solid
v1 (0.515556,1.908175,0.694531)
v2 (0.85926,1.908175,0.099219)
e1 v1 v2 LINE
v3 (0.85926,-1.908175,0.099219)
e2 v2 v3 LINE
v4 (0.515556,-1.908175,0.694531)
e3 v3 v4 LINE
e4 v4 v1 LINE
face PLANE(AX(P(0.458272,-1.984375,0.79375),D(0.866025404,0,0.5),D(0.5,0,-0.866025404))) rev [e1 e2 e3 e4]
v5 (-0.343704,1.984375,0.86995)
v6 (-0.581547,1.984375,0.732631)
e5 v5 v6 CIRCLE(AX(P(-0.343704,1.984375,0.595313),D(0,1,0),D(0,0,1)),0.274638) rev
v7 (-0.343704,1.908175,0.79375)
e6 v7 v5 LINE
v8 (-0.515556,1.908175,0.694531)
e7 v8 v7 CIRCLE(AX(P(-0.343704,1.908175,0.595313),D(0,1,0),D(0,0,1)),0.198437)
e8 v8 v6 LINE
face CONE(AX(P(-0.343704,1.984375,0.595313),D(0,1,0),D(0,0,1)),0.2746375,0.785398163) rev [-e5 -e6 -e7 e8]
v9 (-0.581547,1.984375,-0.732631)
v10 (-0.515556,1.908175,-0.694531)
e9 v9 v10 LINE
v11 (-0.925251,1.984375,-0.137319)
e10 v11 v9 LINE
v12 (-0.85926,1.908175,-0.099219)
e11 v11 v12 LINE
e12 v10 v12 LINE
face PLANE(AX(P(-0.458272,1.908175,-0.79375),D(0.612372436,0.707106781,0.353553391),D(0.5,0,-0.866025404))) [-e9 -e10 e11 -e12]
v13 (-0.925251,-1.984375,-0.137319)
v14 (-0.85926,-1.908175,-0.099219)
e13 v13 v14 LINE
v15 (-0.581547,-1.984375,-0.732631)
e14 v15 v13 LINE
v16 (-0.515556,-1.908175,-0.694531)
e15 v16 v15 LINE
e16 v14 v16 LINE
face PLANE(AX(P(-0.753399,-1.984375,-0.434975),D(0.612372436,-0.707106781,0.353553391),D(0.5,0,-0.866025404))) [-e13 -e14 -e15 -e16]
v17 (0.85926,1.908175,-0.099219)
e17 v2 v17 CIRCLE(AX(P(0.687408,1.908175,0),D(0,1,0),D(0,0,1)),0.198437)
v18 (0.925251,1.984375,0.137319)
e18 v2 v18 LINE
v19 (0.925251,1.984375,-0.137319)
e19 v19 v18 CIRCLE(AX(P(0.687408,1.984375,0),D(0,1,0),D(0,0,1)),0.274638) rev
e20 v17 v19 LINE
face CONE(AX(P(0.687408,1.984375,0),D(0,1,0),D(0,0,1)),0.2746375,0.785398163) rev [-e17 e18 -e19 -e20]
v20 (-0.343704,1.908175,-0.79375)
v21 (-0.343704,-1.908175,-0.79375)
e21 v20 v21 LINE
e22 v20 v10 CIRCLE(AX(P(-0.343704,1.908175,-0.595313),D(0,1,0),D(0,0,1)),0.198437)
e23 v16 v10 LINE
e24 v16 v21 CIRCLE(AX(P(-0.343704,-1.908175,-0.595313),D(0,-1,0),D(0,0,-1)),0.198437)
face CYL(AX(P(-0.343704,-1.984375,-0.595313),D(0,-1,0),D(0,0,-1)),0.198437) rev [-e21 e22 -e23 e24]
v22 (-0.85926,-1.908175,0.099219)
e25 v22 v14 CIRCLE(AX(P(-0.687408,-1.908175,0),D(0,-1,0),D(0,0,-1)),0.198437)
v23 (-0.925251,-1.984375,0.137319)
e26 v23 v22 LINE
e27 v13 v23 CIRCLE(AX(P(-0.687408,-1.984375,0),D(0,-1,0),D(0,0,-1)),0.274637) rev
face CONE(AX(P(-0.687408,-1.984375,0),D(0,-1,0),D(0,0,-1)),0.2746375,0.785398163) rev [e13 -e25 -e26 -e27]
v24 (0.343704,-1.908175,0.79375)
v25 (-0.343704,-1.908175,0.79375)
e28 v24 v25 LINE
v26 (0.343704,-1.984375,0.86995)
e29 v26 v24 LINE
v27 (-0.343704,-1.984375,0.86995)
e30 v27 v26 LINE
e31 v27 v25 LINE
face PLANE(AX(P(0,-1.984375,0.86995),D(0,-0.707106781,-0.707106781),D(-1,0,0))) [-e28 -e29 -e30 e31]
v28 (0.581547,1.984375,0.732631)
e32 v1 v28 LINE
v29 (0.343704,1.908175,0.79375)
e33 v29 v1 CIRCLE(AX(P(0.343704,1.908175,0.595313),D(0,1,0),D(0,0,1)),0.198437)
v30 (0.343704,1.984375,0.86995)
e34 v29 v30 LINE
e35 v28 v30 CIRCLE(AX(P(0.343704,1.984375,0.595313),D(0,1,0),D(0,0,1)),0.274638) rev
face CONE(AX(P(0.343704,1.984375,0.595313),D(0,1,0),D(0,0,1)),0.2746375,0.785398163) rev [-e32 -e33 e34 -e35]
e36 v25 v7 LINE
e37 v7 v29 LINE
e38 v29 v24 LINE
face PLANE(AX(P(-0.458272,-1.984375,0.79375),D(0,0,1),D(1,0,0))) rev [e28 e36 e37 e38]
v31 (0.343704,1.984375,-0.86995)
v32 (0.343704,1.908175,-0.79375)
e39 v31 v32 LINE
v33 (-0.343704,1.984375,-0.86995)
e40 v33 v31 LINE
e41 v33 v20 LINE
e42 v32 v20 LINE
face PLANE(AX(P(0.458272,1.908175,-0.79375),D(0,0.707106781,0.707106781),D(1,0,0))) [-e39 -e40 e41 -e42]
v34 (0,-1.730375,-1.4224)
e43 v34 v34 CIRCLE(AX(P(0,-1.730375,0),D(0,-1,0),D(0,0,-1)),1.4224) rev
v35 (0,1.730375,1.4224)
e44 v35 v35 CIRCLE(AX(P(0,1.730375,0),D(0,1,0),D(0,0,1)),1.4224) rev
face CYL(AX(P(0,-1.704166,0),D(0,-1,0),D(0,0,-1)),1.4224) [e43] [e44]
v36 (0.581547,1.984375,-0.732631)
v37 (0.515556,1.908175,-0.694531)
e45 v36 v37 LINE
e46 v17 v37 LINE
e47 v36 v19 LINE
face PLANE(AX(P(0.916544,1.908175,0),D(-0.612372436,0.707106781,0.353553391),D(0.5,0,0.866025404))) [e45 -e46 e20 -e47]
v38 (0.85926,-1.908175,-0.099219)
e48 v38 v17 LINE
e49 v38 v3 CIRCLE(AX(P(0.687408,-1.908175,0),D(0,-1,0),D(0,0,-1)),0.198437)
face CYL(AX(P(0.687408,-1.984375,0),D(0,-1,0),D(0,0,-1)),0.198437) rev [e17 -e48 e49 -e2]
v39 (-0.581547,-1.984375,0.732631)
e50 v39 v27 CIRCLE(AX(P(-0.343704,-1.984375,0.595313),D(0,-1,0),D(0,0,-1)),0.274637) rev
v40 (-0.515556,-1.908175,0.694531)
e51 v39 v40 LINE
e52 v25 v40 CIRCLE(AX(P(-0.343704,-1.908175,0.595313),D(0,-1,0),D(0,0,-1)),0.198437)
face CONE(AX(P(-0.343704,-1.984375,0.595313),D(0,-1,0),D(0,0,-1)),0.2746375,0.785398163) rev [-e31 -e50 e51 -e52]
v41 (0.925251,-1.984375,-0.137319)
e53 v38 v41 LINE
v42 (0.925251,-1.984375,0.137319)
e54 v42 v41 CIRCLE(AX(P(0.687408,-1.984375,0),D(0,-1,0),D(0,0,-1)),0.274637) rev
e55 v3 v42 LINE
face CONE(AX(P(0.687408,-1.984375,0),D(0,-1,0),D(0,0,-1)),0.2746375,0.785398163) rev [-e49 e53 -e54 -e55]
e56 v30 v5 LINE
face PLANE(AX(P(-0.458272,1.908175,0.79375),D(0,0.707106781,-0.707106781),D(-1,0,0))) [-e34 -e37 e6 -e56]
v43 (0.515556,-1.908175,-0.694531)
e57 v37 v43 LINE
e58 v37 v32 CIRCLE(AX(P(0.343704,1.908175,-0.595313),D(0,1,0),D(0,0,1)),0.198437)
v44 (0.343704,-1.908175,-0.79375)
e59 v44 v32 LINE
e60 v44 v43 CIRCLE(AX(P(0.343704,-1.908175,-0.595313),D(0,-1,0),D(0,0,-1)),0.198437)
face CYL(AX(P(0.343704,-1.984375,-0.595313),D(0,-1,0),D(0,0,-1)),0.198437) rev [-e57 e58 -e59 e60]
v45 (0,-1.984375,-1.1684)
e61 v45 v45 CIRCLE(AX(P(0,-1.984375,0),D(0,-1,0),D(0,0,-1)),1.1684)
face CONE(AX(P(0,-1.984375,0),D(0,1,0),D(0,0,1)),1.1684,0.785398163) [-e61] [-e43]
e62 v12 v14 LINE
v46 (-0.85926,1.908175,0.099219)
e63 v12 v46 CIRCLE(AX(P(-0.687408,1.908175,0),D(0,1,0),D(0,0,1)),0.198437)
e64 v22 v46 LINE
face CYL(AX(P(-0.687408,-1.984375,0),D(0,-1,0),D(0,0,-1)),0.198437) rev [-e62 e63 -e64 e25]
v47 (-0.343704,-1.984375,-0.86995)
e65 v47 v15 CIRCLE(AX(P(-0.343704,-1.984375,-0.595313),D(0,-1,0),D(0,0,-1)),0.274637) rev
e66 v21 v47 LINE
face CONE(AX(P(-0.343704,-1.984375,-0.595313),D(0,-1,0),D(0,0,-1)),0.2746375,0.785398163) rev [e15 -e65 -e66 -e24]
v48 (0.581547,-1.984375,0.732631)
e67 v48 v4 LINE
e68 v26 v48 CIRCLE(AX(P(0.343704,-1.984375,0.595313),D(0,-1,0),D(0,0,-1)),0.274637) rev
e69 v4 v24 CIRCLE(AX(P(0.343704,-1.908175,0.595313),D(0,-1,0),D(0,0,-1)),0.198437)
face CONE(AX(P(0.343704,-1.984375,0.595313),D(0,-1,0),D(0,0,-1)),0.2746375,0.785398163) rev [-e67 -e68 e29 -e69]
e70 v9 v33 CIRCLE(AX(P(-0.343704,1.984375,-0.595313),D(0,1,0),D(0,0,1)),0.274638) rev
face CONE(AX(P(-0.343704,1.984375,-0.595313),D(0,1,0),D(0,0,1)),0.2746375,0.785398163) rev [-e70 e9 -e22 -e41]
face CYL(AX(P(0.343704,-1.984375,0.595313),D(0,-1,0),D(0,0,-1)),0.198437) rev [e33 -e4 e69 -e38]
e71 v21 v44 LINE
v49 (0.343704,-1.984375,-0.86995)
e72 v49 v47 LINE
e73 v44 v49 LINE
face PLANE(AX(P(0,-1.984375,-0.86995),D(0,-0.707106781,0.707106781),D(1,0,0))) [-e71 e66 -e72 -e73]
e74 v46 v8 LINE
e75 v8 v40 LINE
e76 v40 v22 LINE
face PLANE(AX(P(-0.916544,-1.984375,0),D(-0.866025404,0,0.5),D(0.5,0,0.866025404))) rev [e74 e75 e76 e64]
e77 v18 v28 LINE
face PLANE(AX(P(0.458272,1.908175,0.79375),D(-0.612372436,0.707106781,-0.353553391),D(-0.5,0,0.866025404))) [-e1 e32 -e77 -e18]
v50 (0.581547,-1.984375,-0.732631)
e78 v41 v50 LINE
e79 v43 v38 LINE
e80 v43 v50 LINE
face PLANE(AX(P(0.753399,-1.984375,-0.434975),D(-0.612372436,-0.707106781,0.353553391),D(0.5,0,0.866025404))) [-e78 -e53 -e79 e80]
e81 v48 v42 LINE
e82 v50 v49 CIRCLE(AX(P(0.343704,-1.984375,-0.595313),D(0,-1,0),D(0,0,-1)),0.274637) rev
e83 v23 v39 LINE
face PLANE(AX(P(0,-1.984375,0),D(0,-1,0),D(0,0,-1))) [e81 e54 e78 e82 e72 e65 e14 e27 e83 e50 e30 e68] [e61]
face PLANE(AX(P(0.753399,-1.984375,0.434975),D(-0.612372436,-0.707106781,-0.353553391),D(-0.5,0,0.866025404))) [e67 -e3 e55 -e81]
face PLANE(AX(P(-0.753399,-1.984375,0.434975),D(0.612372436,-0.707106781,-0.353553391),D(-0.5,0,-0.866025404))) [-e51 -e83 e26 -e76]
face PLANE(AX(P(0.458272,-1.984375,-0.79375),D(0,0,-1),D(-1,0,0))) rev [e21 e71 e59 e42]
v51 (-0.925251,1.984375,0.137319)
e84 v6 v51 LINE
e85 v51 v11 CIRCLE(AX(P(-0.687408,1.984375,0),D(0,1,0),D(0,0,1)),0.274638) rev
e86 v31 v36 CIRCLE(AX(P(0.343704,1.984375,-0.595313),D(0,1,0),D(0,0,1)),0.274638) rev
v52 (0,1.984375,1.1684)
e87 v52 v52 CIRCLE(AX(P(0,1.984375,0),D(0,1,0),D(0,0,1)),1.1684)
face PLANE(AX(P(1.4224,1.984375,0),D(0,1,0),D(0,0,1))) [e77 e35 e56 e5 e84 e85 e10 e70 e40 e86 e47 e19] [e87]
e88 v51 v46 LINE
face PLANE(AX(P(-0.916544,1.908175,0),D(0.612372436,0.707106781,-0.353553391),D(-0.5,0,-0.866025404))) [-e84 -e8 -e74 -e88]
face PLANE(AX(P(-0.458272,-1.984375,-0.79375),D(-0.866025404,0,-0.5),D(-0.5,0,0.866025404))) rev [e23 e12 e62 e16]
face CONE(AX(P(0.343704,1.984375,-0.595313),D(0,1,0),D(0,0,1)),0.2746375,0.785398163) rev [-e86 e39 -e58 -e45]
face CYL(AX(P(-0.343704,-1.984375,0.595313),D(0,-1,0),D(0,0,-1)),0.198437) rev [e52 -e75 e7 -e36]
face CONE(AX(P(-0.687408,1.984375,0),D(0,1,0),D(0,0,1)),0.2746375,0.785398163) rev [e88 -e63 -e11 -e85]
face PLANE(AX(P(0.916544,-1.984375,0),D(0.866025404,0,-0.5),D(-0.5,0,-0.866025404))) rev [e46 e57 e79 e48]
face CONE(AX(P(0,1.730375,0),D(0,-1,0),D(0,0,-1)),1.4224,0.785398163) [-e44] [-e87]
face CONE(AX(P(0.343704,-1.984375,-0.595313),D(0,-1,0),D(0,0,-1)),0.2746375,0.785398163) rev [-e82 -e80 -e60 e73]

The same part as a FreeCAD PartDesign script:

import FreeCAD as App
import Part
import Sketcher
Q = App.Units.Quantity


def edges_at(feature, points):
    """Names of the edges that pass closest to the given points."""
    edges = feature.Shape.Edges
    near = lambda p: min(range(len(edges)), key=lambda i: edges[i].distToShape(Part.Vertex(*p))[0])
    return sorted({f"Edge{near(p) + 1}" for p in points})


def add_polygon(sketch, points):
    """Adds a closed chain of lines whose ends are joined by coincident constraints."""
    first, n = sketch.GeometryCount, len(points)
    for a, b in zip(points, points[1:] + points[:1]):
        sketch.addGeometry(Part.LineSegment(App.Vector(*a, 0), App.Vector(*b, 0)), False)
    for i in range(n):
        sketch.addConstraint(Sketcher.Constraint("Coincident", first + i, 2, first + (i + 1) % n, 1))

doc = App.newDocument("Part")
body = doc.addObject("PartDesign::Body", "Body")

# Sketch on XY plane
sketch1 = body.newObject("Sketcher::SketchObject", "Sketch")
sketch1.AttachmentSupport = (doc.getObject("XY_Plane"), [""])
sketch1.MapMode = "FlatFace"
add_polygon(sketch1, [(0, 1.984375), (0, -1.984375), (1.4224, -1.984375), (1.4224, 1.984375)])  # lines 0-3
sketch1.addConstraint([
    Sketcher.Constraint("Vertical", 0),
    Sketcher.Constraint("Horizontal", 1),
    Sketcher.Constraint("Vertical", 2),
    Sketcher.Constraint("Horizontal", 3),
    Sketcher.Constraint("Symmetric", 0, 2, 3, 2, -1, 1),
    Sketcher.Constraint("DistanceX", 1, 1, 1, 2, Q("0.056 in")),
    Sketcher.Constraint("DistanceY", 0, 2, 0, 1, Q("0.15625 in")),
])
revolution = body.newObject("PartDesign::Revolution", "Revolution")
revolution.Profile = sketch1
revolution.ReferenceAxis = (sketch1, ["V_Axis"])
revolution.Angle = 360

# Sketch on XZ plane
sketch2 = body.newObject("Sketcher::SketchObject", "Sketch001")
sketch2.AttachmentSupport = (doc.getObject("XZ_Plane"), [""])
sketch2.MapMode = "FlatFace"
add_polygon(sketch2, [(0.916544, 0), (0.458272, -0.79375), (-0.458272, -0.79375), (-0.916544, 0), (-0.458272, 0.79375), (0.458272, 0.79375)])  # lines 0-5
sketch2.addConstraint([
    Sketcher.Constraint("Horizontal", 1),
    Sketcher.Constraint("Horizontal", 4),
    Sketcher.Constraint("Symmetric", 0, 2, 3, 2, -1, 1),
    Sketcher.Constraint("Symmetric", 2, 2, 5, 2, -1, 1),
    Sketcher.Constraint("PointOnObject", 2, 2, -1),
    Sketcher.Constraint("Parallel", 2, 5),
    Sketcher.Constraint("Vertical", 1, 2, 3, 2),
    Sketcher.Constraint("Angle", 0, Q("-120 deg")),
    Sketcher.Constraint("DistanceY", 0, 2, -1, 1, Q("0.03125 in")),
    Sketcher.Constraint("DistanceX", 1, 2, 1, 1, 0.916544),
])
pocket1 = body.newObject("PartDesign::Pocket", "Pocket")
pocket1.Profile = sketch2
pocket1.Type = "ThroughAll"
pocket1.Midplane = True
doc.recompute()

fillet = body.newObject("PartDesign::Fillet", "Fillet")
fillet.Base = (pocket1, edges_at(pocket1, [
    (0.458, 0, -0.794),
    (0.917, 0, 0),
    (0.458, 0, 0.794),
    (-0.458, 0, 0.794),
    (-0.917, 0, 0),
    (-0.458, 0, -0.794),
]))
fillet.Radius = 0.198437
doc.recompute()

chamfer = body.newObject("PartDesign::Chamfer", "Chamfer")
chamfer.Base = (fillet, edges_at(fillet, [(-1.422, 1.984, 0), (-1.422, -1.984, 0)]))
chamfer.Size = Q("0.01 in")
doc.recompute()

chamfer2 = body.newObject("PartDesign::Chamfer", "Chamfer001")
chamfer2.Base = (chamfer, edges_at(chamfer, [
    (0.687, -1.984, -0.397),
    (0.687, 1.984, -0.397),
    (0.687, -1.984, 0.397),
    (0.687, 1.984, 0.397),
    (0, -1.984, 0.794),
    (0, 1.984, 0.794),
    (-0.687, -1.984, 0.397),
    (-0.687, 1.984, 0.397),
    (-0.687, -1.984, -0.397),
    (-0.687, 1.984, -0.397),
    (0, -1.984, -0.794),
    (0, 1.984, -0.794),
    (0.886, 1.984, 0),
    (0.886, -1.984, 0),
    (0.443, 1.984, 0.767),
    (0.443, -1.984, 0.767),
    (-0.443, 1.984, 0.767),
    (-0.443, -1.984, 0.767),
    (-0.886, 1.984, 0),
    (-0.886, -1.984, 0),
    (-0.443, 1.984, -0.767),
    (-0.443, -1.984, -0.767),
    (0.443, 1.984, -0.767),
    (0.443, -1.984, -0.767),
]))
chamfer2.Size = Q("0.003 in")

doc.recompute()
